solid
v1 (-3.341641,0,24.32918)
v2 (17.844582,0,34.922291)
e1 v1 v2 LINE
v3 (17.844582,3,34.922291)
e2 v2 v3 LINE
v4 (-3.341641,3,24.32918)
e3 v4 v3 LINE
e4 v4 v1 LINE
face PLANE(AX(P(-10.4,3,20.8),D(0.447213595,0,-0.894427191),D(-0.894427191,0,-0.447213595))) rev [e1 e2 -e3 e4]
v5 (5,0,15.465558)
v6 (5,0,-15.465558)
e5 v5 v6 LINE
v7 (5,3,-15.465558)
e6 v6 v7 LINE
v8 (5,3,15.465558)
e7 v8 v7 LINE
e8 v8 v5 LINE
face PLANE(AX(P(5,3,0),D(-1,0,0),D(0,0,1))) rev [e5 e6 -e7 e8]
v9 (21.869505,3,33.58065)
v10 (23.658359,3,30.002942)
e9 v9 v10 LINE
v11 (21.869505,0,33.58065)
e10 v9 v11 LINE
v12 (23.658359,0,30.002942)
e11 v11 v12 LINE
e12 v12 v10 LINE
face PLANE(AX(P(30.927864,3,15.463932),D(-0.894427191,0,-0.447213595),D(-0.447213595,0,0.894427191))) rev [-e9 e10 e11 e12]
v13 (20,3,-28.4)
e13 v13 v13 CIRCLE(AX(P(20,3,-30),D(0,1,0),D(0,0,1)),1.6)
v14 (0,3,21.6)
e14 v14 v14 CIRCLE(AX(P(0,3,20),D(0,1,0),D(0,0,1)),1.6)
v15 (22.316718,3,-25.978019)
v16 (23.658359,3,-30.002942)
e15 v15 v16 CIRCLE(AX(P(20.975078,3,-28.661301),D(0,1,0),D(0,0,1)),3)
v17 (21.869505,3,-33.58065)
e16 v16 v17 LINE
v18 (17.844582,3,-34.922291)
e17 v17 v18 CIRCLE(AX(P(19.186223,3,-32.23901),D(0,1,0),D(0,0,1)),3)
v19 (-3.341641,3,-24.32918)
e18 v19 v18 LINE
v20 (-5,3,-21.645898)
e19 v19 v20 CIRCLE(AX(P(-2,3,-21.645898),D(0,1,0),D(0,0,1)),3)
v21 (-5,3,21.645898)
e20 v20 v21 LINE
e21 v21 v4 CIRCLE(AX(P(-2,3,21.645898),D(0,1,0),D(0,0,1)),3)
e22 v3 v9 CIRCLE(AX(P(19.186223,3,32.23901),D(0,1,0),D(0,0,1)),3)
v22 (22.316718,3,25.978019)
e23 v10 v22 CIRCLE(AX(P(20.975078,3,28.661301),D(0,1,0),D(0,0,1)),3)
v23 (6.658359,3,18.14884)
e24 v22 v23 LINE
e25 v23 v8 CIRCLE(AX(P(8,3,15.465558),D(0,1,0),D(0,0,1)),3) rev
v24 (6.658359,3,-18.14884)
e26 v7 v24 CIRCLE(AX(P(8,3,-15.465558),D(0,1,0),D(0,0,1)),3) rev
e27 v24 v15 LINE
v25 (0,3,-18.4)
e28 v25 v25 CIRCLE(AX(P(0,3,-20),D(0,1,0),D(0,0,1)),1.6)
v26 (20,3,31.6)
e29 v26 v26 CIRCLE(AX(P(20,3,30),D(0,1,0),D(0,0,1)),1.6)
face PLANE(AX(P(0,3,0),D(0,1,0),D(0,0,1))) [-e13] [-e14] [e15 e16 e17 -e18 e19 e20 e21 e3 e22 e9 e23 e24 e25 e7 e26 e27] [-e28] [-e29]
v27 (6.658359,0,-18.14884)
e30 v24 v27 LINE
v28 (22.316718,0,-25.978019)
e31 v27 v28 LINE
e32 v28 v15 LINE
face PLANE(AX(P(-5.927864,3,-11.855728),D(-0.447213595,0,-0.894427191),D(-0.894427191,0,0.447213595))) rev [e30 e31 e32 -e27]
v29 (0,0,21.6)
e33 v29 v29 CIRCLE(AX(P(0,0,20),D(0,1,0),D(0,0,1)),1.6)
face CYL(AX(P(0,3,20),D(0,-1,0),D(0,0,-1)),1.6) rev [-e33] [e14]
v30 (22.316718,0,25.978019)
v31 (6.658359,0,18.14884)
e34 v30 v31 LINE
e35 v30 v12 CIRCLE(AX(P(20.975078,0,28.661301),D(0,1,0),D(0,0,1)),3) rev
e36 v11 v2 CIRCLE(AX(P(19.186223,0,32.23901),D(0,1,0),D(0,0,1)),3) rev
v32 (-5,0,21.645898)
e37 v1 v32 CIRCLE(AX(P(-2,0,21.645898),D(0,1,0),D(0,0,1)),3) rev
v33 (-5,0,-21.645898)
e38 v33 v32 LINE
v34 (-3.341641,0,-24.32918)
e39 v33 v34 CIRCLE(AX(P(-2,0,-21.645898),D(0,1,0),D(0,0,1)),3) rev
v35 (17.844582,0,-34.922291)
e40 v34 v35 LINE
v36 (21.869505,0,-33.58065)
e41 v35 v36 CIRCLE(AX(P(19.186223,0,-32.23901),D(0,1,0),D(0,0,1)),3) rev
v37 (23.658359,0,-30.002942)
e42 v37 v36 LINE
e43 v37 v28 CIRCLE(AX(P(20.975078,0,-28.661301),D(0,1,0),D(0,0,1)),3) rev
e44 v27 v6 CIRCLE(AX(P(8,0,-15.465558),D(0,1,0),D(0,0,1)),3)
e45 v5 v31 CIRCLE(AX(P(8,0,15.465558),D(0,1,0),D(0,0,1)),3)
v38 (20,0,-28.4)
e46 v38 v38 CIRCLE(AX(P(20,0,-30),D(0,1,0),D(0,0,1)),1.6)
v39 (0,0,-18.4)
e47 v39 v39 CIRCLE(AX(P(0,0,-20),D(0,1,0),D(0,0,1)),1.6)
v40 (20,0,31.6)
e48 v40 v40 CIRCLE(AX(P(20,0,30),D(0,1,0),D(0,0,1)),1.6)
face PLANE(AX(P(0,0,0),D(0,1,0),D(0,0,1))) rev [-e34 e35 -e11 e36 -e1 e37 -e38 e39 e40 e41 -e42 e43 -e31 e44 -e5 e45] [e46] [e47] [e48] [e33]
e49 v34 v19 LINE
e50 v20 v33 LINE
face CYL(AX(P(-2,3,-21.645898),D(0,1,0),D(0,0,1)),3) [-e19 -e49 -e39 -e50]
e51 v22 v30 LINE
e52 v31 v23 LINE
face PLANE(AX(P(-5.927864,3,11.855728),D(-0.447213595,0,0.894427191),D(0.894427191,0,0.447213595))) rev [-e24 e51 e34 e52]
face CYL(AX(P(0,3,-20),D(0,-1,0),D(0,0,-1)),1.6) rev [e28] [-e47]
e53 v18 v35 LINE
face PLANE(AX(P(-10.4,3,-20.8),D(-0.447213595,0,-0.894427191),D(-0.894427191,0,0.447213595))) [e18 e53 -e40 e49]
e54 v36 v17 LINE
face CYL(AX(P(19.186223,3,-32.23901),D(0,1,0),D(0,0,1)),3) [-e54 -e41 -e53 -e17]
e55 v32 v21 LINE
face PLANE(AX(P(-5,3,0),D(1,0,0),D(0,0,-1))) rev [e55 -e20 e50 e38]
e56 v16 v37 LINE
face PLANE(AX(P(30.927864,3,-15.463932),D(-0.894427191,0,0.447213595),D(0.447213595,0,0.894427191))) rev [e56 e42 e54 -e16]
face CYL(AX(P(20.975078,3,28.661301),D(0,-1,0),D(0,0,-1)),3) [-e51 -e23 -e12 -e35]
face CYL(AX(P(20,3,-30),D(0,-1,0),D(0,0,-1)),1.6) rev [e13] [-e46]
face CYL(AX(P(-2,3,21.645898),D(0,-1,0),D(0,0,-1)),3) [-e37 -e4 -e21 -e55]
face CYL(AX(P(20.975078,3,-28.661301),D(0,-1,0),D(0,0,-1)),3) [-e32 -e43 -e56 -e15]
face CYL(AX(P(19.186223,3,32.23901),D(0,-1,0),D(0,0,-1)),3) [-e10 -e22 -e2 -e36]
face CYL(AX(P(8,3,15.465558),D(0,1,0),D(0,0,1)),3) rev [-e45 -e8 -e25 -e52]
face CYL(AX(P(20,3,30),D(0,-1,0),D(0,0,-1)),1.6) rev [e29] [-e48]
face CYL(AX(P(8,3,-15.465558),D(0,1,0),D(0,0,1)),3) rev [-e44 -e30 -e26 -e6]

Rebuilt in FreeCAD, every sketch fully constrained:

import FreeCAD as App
import Part
import Sketcher
from FreeCAD import Vector


def edges_at(feature, points):
    """Names of the edges that pass closest to the given points."""
    edges = feature.Shape.Edges
    near = lambda p: min(range(len(edges)), key=lambda i: edges[i].distToShape(Part.Vertex(*p))[0])
    return sorted({f"Edge{near(p) + 1}" for p in points})


def add_polygon(sketch, points):
    """Adds a closed chain of lines whose ends are joined by coincident constraints."""
    first, n = sketch.GeometryCount, len(points)
    for a, b in zip(points, points[1:] + points[:1]):
        sketch.addGeometry(Part.LineSegment(App.Vector(*a, 0), App.Vector(*b, 0)), False)
    for i in range(n):
        sketch.addConstraint(Sketcher.Constraint("Coincident", first + i, 2, first + (i + 1) % n, 1))

doc = App.newDocument("Part")
body = doc.addObject("PartDesign::Body", "Body")

sketch1 = body.newObject("Sketcher::SketchObject", "Sketch")
sketch1.AttachmentSupport = (doc.getObject("XZ_Plane"), [""])
sketch1.MapMode = "FlatFace"
add_polygon(sketch1, [(-5, -23.5), (-5, 23.5), (20.5, 36.3), (25, 27.3), (5, 17.3), (5, -17.3), (25, -27.3), (20.5, -36.3)])
sketch1.addGeometry(Part.Circle(Vector(0, 20, 0), Vector(0, 0, 1), 1.6), False)
sketch1.addGeometry(Part.Circle(Vector(20, 30, 0), Vector(0, 0, 1), 1.6), False)
sketch1.addGeometry(Part.Circle(Vector(0, -20, 0), Vector(0, 0, 1), 1.6), False)
sketch1.addGeometry(Part.Circle(Vector(20, -30, 0), Vector(0, 0, 1), 1.6), False)
sketch1.addConstraint(Sketcher.Constraint("Vertical", 0))
sketch1.addConstraint(Sketcher.Constraint("Vertical", 4))
sketch1.addConstraint(Sketcher.Constraint("Equal", 8, 9))
sketch1.addConstraint(Sketcher.Constraint("Equal", 9, 10))
sketch1.addConstraint(Sketcher.Constraint("Equal", 10, 11))
sketch1.addConstraint(Sketcher.Constraint("Symmetric", 8, 3, 10, 3, -1, 1))
sketch1.addConstraint(Sketcher.Constraint("Symmetric", 9, 3, 11, 3, -1))
sketch1.addConstraint(Sketcher.Constraint("Symmetric", 2, 2, 5, 2, -1))
sketch1.addConstraint(Sketcher.Constraint("Symmetric", 1, 2, 6, 2, -1))
sketch1.addConstraint(Sketcher.Constraint("PointOnObject", 8, 3, -2))
sketch1.addConstraint(Sketcher.Constraint("Perpendicular", 1, 2))
sketch1.addConstraint(Sketcher.Constraint("Perpendicular", 2, 3))
sketch1.addConstraint(Sketcher.Constraint("Perpendicular", 5, 6))
sketch1.addConstraint(Sketcher.Constraint("Perpendicular", 6, 7))
sketch1.addConstraint(Sketcher.Constraint("Diameter", 8, 3.2))
sketch1.addConstraint(Sketcher.Constraint("DistanceY", 0, 1, 0, 2, 47.0))
sketch1.addConstraint(Sketcher.Constraint("Distance", 2, 10.0))
sketch1.addConstraint(Sketcher.Constraint("DistanceY", -1, 1, 8, 3, 20.0))
sketch1.addConstraint(Sketcher.Constraint("DistanceX", -1, 1, 9, 3, 20.0))
sketch1.addConstraint(Sketcher.Constraint("DistanceY", -1, 1, 9, 3, 30.0))
sketch1.addConstraint(Sketcher.Constraint("DistanceX", 0, 2, -1, 1, 5.0))
sketch1.addConstraint(Sketcher.Constraint("DistanceX", -1, 1, 2, 2, 25.0))
sketch1.addConstraint(Sketcher.Constraint("DistanceX", -1, 1, 3, 2, 5.0))
sketch1.addConstraint(Sketcher.Constraint("DistanceY", 3, 2, 2, 2, 10.0))
pad1 = body.newObject("PartDesign::Pad", "Pad")
pad1.Profile = sketch1
pad1.Length = 3
pad1.Reversed = True
doc.recompute()

fillet = body.newObject("PartDesign::Fillet", "Fillet")
fillet.Base = (pad1, edges_at(pad1, [
    (25, 1.5, 27.32),
    (20.528, 1.5, 36.264),
    (-5, 1.5, 23.5),
    (-5, 1.5, -23.5),
    (20.528, 1.5, -36.264),
    (25, 1.5, -27.32),
    (5, 1.5, -17.32),
    (5, 1.5, 17.32),
]))
fillet.Radius = 3

doc.recompute()
